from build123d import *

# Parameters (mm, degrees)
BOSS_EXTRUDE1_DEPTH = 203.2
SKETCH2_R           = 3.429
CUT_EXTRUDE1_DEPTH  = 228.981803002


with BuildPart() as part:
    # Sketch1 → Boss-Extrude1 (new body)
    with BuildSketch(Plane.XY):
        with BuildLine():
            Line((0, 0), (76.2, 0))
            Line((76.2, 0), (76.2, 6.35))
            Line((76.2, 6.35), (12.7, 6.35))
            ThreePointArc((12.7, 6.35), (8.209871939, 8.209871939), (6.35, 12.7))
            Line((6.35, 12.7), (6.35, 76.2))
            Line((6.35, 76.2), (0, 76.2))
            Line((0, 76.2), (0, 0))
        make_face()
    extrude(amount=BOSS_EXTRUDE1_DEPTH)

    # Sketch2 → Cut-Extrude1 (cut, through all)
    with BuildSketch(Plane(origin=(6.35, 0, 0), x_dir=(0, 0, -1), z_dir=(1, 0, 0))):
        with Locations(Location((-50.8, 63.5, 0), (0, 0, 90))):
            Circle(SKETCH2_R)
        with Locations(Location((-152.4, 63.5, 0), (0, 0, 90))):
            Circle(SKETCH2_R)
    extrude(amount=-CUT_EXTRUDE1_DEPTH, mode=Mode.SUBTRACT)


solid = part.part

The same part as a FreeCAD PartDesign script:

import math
import FreeCAD as App
import Part
import Sketcher
Q = App.Units.Quantity

doc = App.newDocument("Part")
body = doc.addObject("PartDesign::Body", "Body")

# Sketch on XY plane
sketch1 = body.newObject("Sketcher::SketchObject", "Sketch")
sketch1.AttachmentSupport = (doc.getObject("XY_Plane"), [""])
sketch1.MapMode = "FlatFace"
sketch1.addGeometry([
    Part.LineSegment(App.Vector(0, 0, 0), App.Vector(76, 0, 0)),  # 0
    Part.LineSegment(App.Vector(76, 0, 0), App.Vector(76, 6, 0)),  # 1
    Part.LineSegment(App.Vector(76, 6, 0), App.Vector(13, 6, 0)),  # 2
    Part.ArcOfCircle(Part.Circle(App.Vector(13, 13, 0), App.Vector(0, 0, 1), 6), math.radians(180), math.radians(270)),  # 3
    Part.LineSegment(App.Vector(6, 13, 0), App.Vector(6, 76, 0)),  # 4
    Part.LineSegment(App.Vector(6, 76, 0), App.Vector(0, 76, 0)),  # 5
    Part.LineSegment(App.Vector(0, 76, 0), App.Vector(0, 0, 0)),  # 6
], False)
sketch1.addConstraint([
    Sketcher.Constraint("Coincident", 0, 2, 1, 1),
    Sketcher.Constraint("Coincident", 1, 2, 2, 1),
    Sketcher.Constraint("Tangent", 2, 2, 3, 2),
    Sketcher.Constraint("Tangent", 3, 1, 4, 1),
    Sketcher.Constraint("Coincident", 4, 2, 5, 1),
    Sketcher.Constraint("Coincident", 5, 2, 6, 1),
    Sketcher.Constraint("Coincident", 6, 2, 0, 1),
    Sketcher.Constraint("Horizontal", 0),
    Sketcher.Constraint("Vertical", 1),
    Sketcher.Constraint("Horizontal", 2),
    Sketcher.Constraint("Vertical", 4),
    Sketcher.Constraint("Horizontal", 5),
    Sketcher.Constraint("Vertical", 6),
    Sketcher.Constraint("Coincident", 6, 2, -1, 1),
    Sketcher.Constraint("Equal", 5, 1),
    Sketcher.Constraint("Equal", 2, 4),
    Sketcher.Constraint("DistanceX", 0, 1, 0, 2, Q("3 in")),
    Sketcher.Constraint("Radius", 3, Q("0.25 in")),
    Sketcher.Constraint("DistanceX", 2, 2, 2, 1, Q("2.5 in")),
])
pad1 = body.newObject("PartDesign::Pad", "Pad")
pad1.Profile = sketch1
pad1.Length = Q("8 in")

# Sketch on YZ plane
sketch2 = body.newObject("Sketcher::SketchObject", "Sketch001")
sketch2.AttachmentSupport = (doc.getObject("YZ_Plane"), [""])
sketch2.MapMode = "FlatFace"
sketch2.AttachmentOffset = App.Placement(App.Vector(0, 0, 0.25 * 25.4), App.Rotation())
sketch2.addGeometry([
    Part.Circle(App.Vector(63.5, 50.8, 0), App.Vector(0, 0, 1), 3.4),
    Part.Circle(App.Vector(63.5, 152.4, 0), App.Vector(0, 0, 1), 3.4),
], False)
sketch2.addConstraint([
    Sketcher.Constraint("Equal", 0, 1),
    Sketcher.Constraint("Vertical", 0, 3, 1, 3),
    Sketcher.Constraint("Diameter", 0, Q("0.27 in")),
    Sketcher.Constraint("DistanceY", -1, 1, 0, 3, Q("2 in")),
    Sketcher.Constraint("DistanceY", -1, 1, 1, 3, Q("6 in")),
    Sketcher.Constraint("DistanceX", -1, 1, 0, 3, Q("2.5 in")),
])
pocket1 = body.newObject("PartDesign::Pocket", "Pocket")
pocket1.Profile = sketch2
pocket1.Type = "ThroughAll"

doc.recompute()
